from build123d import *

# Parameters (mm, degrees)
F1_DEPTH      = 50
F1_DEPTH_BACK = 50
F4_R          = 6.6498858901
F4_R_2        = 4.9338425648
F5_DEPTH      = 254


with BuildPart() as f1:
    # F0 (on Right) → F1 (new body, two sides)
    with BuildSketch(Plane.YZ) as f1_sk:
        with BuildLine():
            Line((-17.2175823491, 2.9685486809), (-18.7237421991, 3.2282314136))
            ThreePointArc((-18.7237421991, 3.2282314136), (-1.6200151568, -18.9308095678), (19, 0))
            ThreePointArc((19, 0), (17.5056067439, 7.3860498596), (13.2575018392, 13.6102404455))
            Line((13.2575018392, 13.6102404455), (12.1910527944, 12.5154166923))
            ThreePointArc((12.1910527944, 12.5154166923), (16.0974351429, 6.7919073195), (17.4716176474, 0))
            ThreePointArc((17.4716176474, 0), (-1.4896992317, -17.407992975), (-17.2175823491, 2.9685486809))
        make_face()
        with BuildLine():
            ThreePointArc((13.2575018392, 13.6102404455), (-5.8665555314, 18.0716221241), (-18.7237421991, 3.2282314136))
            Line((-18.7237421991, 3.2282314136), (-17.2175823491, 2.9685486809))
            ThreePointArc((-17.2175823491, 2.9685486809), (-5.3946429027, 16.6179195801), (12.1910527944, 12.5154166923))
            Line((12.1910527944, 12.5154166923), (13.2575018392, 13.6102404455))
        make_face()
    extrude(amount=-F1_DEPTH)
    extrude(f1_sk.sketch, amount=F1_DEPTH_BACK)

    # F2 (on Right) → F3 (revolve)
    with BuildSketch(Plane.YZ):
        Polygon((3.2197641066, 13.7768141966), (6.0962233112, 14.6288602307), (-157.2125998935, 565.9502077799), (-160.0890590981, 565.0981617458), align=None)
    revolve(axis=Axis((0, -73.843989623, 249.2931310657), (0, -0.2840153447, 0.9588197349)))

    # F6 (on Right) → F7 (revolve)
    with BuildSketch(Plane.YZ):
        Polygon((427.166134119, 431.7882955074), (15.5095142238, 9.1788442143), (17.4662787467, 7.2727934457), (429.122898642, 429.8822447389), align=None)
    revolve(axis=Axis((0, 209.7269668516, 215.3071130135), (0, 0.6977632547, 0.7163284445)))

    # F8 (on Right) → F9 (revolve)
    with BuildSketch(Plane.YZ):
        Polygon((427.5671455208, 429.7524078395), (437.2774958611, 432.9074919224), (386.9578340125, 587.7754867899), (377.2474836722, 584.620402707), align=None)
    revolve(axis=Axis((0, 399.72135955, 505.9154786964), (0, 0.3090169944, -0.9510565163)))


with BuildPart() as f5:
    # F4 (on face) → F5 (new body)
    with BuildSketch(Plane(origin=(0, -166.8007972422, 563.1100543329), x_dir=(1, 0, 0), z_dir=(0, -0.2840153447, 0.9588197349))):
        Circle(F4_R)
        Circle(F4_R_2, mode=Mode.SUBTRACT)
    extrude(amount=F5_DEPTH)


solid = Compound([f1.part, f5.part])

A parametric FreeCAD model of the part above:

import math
import FreeCAD as App
import Part
import Sketcher
from FreeCAD import Vector
Q = App.Units.Quantity


def add_polygon(sketch, points):
    """Adds a closed chain of lines whose ends are joined by coincident constraints."""
    first, n = sketch.GeometryCount, len(points)
    for a, b in zip(points, points[1:] + points[:1]):
        sketch.addGeometry(Part.LineSegment(App.Vector(*a, 0), App.Vector(*b, 0)), False)
    for i in range(n):
        sketch.addConstraint(Sketcher.Constraint("Coincident", first + i, 2, first + (i + 1) % n, 1))

doc = App.newDocument("Part")
body = doc.addObject("PartDesign::Body", "Body")

# Sketch on YZ plane
sketch1 = body.newObject("Sketcher::SketchObject", "Sketch")
sketch1.AttachmentSupport = (doc.getObject("YZ_Plane"), [""])
sketch1.MapMode = "FlatFace"
sketch1.addGeometry([
    Part.ArcOfCircle(Part.Circle(Vector(0, 0, 0), Vector(0, 0, 1), 19), math.radians(170), math.radians(360)),
    Part.ArcOfCircle(Part.Circle(Vector(0, 0, 0), Vector(0, 0, 1), 19), math.radians(0), math.radians(170)),
    Part.ArcOfCircle(Part.Circle(Vector(0, 0, 0), Vector(0, 0, 1), 17), math.radians(0), math.radians(46)),
    Part.ArcOfCircle(Part.Circle(Vector(0, 0, 0), Vector(0, 0, 1), 17), math.radians(46), math.radians(360)),
], False)
sketch1.addConstraint([
    Sketcher.Constraint("Tangent", 0, 1, 1, 2),
    Sketcher.Constraint("Coincident", 1, 1, 0, 2),
    Sketcher.Constraint("Tangent", 2, 1, 3, 2),
    Sketcher.Constraint("Coincident", 3, 1, 2, 2),
    Sketcher.Constraint("Coincident", 0, 3, -1, 1),
    Sketcher.Constraint("Coincident", 2, 3, -1, 1),
    Sketcher.Constraint("PointOnObject", 1, 1, -1),
    Sketcher.Constraint("PointOnObject", 2, 1, -1),
    Sketcher.Constraint("Radius", 0, 19.0),
    Sketcher.Constraint("Radius", 2, 17.471618),
    Sketcher.Constraint("DistanceY", -1, 1, 0, 1, 3.228231),
    Sketcher.Constraint("DistanceX", -1, 1, 3, 1, 12.191053),
])
pad1 = body.newObject("PartDesign::Pad", "Pad")
pad1.Profile = sketch1
pad1.Type = "TwoLengths"
pad1.Length = 50
pad1.Length2 = 50
pad1.Reversed = True

# Sketch on YZ plane
sketch2 = body.newObject("Sketcher::SketchObject", "Sketch001")
sketch2.AttachmentSupport = (doc.getObject("YZ_Plane"), [""])
sketch2.MapMode = "FlatFace"
add_polygon(sketch2, [(3.2, 13.8), (6.1, 14.6), (-157.2, 566), (-160.1, 565.1)])  # lines 0-3
sketch2.addGeometry(Part.LineSegment(Vector(-3.5, 11.8, 0), Vector(-166.8, 563.1, 0)), True)  # axis
sketch2.addConstraint([
    Sketcher.Constraint("Perpendicular", 0, 1),
    Sketcher.Constraint("Perpendicular", 1, 2),
    Sketcher.Constraint("Perpendicular", 2, 3),
    Sketcher.Constraint("Parallel", 3, 4),
    Sketcher.Constraint("Equal", 3, 4),
    Sketcher.Constraint("Distance", 0, 3.0),
    Sketcher.Constraint("Distance", 1, 575.0),
    Sketcher.Constraint("Angle", 0, Q("16.5 deg")),
    Sketcher.Constraint("DistanceX", 1, 2, -1, 1, 157.2126),
    Sketcher.Constraint("DistanceY", 4, 1, 1, 2, 554.161501),
    Sketcher.Constraint("DistanceY", -1, 1, 0, 2, 14.62886),
    Sketcher.Constraint("DistanceX", 4, 1, 3, 2, 6.711738),
])
revolution = body.newObject("PartDesign::Revolution", "Revolution")
revolution.Profile = sketch2
revolution.ReferenceAxis = (sketch2, ["Axis0"])
revolution.Angle = 360

# Sketch on YZ plane
sketch3 = body.newObject("Sketcher::SketchObject", "Sketch002")
sketch3.AttachmentSupport = (doc.getObject("YZ_Plane"), [""])
sketch3.MapMode = "FlatFace"
add_polygon(sketch3, [(427.2, 431.8), (15.5, 9.2), (17.5, 7.3), (429.1, 429.9)])  # lines 0-3
sketch3.addGeometry(Part.LineSegment(Vector(12.1, 12.5, 0), Vector(423.8, 435.1, 0)), True)  # axis
sketch3.addConstraint([
    Sketcher.Constraint("Perpendicular", 0, 1),
    Sketcher.Constraint("Perpendicular", 1, 2),
    Sketcher.Constraint("Perpendicular", 2, 3),
    Sketcher.Constraint("Perpendicular", 3, 4),
    Sketcher.Constraint("Equal", 2, 4),
    Sketcher.Constraint("DistanceX", -1, 1, 2, 2, 429.122899),
    Sketcher.Constraint("DistanceY", 0, 2, 2, 2, 420.703401),
    Sketcher.Constraint("DistanceX", 4, 1, 0, 2, 3.370502),
    Sketcher.Constraint("DistanceY", 1, 2, 4, 1, 5.189199),
    Sketcher.Constraint("Distance", 1, 2.731658),
    Sketcher.Constraint("DistanceX", -1, 1, 1, 2, 17.466279),
    Sketcher.Constraint("DistanceY", -1, 1, 0, 2, 9.178844),
])
revolution2 = body.newObject("PartDesign::Revolution", "Revolution001")
revolution2.Profile = sketch3
revolution2.ReferenceAxis = (sketch3, ["Axis0"])
revolution2.Angle = 360

# Sketch on YZ plane
sketch4 = body.newObject("Sketcher::SketchObject", "Sketch003")
sketch4.AttachmentSupport = (doc.getObject("YZ_Plane"), [""])
sketch4.MapMode = "FlatFace"
add_polygon(sketch4, [(428, 430), (437, 433), (387, 588), (377, 585)])  # lines 0-3
sketch4.addGeometry(Part.LineSegment(Vector(374, 584, 0), Vector(425, 429, 0)), True)  # axis
sketch4.addConstraint([
    Sketcher.Constraint("Perpendicular", 0, 1),
    Sketcher.Constraint("Perpendicular", 1, 2),
    Sketcher.Constraint("Perpendicular", 2, 3),
    Sketcher.Constraint("Parallel", 3, 4),
    Sketcher.Constraint("Equal", 3, 4),
    Sketcher.Constraint("Angle", 0, Q("18 deg")),
    Sketcher.Constraint("DistanceX", -1, 1, 4, 1, 374.444499),
    Sketcher.Constraint("DistanceY", -1, 1, 0, 2, 432.907492),
    Sketcher.Constraint("DistanceX", -1, 1, 4, 2, 424.76416),
    Sketcher.Constraint("DistanceX", 2, 2, 1, 2, 9.71035),
    Sketcher.Constraint("DistanceY", 4, 1, 1, 2, 4.065829),
    Sketcher.Constraint("DistanceX", -1, 1, 0, 2, 437.277496),
])
revolution3 = body.newObject("PartDesign::Revolution", "Revolution002")
revolution3.Profile = sketch4
revolution3.ReferenceAxis = (sketch4, ["Axis0"])
revolution3.Angle = 360
body2 = doc.addObject("PartDesign::Body", "Body001")

# Sketch on an angled plane
sketch5 = body2.newObject("Sketcher::SketchObject", "Sketch004")
sketch5.Placement = App.Placement(Vector(0, -166.800797, 563.110054), App.Rotation(Vector(1, 0, 0), Vector(0, 0.958819735, 0.284015345), Vector(0, -0.284015345, 0.958819735), "ZXY"))
sketch5.addGeometry([
    Part.Circle(Vector(0, 0, 0), Vector(0, 0, 1), 6.6),
    Part.Circle(Vector(0, 0, 0), Vector(0, 0, 1), 4.9),
], False)
sketch5.addConstraint([
    Sketcher.Constraint("Coincident", 0, 3, -1, 1),
    Sketcher.Constraint("Coincident", 1, 3, -1, 1),
    Sketcher.Constraint("Diameter", 0, 13.299772),
    Sketcher.Constraint("Diameter", 1, 9.867685),
])
pad2 = body2.newObject("PartDesign::Pad", "Pad001")
pad2.Profile = sketch5
pad2.Length = 254

doc.recompute()
